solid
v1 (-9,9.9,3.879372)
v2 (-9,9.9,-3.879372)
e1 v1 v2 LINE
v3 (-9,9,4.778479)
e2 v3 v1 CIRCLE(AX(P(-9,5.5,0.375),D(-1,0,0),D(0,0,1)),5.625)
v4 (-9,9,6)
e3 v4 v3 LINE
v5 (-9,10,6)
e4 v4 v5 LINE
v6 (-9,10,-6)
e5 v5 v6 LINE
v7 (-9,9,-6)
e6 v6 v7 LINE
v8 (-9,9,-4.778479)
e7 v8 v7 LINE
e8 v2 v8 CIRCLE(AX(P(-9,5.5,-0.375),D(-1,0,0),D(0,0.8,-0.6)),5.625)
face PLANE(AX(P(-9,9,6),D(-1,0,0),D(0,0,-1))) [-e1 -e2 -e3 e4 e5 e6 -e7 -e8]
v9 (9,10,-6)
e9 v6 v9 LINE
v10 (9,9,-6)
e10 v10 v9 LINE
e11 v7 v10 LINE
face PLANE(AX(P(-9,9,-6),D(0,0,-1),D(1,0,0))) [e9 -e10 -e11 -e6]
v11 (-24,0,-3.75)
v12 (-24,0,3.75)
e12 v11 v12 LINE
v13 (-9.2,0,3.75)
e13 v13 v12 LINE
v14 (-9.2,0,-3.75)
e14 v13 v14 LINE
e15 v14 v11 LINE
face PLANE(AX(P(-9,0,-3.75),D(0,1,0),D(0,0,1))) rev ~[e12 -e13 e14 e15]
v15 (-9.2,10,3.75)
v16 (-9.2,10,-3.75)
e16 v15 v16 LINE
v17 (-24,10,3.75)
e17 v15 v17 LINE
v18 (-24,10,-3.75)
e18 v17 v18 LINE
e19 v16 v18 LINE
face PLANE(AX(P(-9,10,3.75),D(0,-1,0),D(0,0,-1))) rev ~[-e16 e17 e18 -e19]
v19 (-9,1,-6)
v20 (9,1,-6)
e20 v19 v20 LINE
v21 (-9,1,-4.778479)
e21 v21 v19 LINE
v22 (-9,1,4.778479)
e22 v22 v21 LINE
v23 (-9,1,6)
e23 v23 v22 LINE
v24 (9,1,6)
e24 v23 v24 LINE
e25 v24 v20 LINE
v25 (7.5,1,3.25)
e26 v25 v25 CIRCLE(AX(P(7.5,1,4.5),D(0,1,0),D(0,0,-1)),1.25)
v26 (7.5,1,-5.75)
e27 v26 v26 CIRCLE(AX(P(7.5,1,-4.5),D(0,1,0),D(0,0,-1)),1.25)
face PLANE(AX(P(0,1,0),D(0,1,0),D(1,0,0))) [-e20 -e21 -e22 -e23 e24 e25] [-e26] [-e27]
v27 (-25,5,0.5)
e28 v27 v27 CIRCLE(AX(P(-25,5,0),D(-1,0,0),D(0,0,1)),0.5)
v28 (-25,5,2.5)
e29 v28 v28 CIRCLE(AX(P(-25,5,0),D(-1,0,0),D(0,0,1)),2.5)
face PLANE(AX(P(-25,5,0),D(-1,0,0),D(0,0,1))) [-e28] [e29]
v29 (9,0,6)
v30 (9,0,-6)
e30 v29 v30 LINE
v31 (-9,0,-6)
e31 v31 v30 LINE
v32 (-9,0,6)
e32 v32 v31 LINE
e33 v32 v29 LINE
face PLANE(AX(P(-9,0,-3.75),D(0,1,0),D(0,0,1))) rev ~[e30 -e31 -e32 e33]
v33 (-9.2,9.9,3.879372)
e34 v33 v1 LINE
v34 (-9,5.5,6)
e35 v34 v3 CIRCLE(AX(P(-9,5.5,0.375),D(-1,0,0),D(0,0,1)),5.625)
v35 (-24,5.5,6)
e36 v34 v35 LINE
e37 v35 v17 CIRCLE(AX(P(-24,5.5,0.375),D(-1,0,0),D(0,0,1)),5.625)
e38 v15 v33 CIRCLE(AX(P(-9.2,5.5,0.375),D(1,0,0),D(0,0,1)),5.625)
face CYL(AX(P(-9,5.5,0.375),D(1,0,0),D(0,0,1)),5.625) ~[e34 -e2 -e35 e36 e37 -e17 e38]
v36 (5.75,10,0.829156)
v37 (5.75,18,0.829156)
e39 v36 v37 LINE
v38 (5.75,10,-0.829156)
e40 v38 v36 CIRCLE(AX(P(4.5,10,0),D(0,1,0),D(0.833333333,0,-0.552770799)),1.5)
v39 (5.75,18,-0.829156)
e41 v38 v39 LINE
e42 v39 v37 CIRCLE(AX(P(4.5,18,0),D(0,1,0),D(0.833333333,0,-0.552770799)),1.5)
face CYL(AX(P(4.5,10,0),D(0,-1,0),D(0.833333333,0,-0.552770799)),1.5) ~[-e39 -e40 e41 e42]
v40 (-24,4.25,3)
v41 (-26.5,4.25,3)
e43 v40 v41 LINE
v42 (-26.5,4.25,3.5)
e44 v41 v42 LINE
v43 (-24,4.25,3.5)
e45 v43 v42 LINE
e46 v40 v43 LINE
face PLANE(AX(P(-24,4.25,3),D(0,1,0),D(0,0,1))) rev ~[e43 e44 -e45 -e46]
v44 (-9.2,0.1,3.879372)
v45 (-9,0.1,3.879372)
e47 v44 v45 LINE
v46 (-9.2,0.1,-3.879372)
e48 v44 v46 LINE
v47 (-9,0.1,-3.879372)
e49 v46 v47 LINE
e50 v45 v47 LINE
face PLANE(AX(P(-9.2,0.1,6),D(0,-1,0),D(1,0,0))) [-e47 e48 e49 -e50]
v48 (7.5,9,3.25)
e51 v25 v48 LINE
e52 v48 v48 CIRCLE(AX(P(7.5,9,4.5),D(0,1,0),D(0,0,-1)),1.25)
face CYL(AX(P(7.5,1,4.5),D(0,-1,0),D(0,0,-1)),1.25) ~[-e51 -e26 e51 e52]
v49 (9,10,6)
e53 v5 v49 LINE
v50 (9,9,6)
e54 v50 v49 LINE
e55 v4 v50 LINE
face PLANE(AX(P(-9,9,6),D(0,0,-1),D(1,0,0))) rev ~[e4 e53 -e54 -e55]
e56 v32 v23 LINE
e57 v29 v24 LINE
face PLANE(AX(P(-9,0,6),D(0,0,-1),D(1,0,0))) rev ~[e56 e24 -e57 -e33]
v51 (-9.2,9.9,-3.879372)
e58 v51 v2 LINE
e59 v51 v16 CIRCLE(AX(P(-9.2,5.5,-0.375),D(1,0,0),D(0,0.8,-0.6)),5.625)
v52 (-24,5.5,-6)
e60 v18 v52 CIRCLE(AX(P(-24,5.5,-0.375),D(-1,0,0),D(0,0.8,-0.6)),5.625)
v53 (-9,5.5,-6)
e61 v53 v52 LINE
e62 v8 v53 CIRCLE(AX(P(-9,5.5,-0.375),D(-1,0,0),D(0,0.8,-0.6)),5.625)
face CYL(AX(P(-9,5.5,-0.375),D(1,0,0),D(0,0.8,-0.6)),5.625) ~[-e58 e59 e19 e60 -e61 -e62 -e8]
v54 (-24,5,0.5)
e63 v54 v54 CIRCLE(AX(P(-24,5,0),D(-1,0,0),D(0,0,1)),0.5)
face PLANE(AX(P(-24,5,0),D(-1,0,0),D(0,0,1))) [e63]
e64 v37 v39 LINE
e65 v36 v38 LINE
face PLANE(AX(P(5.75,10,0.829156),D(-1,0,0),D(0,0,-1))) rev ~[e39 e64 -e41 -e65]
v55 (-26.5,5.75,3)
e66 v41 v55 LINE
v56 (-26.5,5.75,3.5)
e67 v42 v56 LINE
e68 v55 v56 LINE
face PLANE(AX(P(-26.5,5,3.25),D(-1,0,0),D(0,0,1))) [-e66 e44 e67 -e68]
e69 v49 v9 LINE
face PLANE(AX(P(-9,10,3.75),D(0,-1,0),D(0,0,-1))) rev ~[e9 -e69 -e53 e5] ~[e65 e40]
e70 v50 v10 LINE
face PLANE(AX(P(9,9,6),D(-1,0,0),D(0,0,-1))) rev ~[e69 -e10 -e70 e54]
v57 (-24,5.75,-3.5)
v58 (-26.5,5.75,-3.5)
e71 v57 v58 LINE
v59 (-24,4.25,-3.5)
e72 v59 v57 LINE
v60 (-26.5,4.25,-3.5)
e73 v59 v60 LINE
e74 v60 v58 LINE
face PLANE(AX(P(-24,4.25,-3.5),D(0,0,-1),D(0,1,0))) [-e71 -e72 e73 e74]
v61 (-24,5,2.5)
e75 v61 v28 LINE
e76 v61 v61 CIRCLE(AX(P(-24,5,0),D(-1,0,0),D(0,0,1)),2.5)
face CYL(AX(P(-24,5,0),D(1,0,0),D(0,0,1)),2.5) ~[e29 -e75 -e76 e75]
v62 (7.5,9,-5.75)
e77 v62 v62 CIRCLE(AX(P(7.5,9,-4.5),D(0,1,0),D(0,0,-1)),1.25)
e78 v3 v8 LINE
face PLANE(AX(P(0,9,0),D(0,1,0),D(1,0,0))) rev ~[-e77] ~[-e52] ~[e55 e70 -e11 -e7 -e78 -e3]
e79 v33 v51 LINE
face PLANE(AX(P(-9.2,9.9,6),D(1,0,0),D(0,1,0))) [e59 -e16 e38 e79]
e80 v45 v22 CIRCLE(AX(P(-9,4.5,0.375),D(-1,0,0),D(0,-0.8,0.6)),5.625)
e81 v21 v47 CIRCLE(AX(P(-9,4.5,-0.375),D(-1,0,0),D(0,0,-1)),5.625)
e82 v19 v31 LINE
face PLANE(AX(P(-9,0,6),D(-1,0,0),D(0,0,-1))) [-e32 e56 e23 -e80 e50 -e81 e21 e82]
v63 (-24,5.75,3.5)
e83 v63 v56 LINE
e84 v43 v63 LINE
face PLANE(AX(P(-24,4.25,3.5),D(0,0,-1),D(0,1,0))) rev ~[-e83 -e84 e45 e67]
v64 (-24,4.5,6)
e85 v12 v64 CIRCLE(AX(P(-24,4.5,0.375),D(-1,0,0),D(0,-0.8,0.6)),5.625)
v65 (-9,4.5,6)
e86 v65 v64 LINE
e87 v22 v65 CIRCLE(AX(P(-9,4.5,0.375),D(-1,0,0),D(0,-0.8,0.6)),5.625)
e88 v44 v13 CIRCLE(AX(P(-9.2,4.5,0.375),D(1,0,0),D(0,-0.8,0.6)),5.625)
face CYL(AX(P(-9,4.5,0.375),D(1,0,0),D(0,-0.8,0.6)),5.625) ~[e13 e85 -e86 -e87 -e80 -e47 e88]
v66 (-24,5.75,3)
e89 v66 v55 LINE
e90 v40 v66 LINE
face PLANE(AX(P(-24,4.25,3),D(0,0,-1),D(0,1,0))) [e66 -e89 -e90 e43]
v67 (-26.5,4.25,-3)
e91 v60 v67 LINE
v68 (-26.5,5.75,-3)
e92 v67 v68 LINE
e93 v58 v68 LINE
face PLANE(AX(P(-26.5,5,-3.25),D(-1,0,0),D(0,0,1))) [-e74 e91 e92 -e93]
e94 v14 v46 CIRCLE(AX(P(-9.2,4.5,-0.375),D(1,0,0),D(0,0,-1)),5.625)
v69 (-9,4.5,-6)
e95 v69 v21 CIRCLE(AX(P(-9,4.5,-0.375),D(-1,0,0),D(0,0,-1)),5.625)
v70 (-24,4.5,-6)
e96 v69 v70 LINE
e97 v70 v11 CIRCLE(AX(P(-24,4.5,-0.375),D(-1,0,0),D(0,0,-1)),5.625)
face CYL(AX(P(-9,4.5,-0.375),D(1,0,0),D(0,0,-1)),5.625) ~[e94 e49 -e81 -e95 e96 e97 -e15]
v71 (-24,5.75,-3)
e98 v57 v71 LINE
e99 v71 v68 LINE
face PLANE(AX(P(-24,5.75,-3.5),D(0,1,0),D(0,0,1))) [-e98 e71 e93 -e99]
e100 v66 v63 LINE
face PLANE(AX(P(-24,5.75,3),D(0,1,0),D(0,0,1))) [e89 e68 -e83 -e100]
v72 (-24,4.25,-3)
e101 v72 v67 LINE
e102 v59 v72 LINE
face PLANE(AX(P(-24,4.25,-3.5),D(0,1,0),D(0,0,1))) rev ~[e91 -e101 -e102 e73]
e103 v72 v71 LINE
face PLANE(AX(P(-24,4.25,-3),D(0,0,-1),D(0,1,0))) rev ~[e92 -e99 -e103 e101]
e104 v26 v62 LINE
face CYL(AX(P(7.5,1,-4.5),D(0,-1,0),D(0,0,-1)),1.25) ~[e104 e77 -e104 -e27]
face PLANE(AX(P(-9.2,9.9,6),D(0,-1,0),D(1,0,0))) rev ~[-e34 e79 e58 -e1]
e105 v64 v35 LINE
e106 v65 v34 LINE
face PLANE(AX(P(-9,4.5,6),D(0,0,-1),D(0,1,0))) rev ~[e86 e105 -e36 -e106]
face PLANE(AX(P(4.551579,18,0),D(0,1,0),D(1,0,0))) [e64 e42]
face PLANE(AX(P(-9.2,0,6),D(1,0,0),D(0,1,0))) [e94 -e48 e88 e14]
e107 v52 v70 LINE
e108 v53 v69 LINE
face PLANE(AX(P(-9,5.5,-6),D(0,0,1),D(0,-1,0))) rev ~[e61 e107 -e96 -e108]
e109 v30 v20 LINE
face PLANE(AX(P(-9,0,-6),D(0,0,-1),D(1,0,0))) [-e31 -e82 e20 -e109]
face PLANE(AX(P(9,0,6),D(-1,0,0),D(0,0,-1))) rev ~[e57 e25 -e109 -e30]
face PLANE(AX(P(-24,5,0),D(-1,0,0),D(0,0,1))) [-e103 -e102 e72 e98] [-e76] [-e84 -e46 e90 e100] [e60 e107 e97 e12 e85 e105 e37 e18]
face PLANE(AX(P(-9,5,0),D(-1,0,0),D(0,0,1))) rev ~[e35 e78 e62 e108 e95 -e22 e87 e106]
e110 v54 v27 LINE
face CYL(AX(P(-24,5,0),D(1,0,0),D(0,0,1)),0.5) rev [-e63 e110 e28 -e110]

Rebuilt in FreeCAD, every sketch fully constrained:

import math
import FreeCAD as App
import Part
import Sketcher

V = App.Vector
Q = App.Units.Quantity

doc = App.newDocument("Part")
body = doc.addObject("PartDesign::Body", "Body")

sketch1 = body.newObject("Sketcher::SketchObject", "Sketch")
sketch1.AttachmentSupport = (doc.getObject("XZ_Plane"), [""])
sketch1.MapMode = "FlatFace"
sketch1.addGeometry([
    Part.LineSegment(V(-9, -6, 0), V(-9, 6, 0)),
    Part.LineSegment(V(-9, 6, 0), V(9, 6, 0)),
    Part.LineSegment(V(9, 6, 0), V(9, -6, 0)),
    Part.LineSegment(V(9, -6, 0), V(-9, -6, 0)),
], False)
sketch1.addConstraint([
    Sketcher.Constraint("Coincident", 0, 2, 1, 1),
    Sketcher.Constraint("Coincident", 1, 2, 2, 1),
    Sketcher.Constraint("Coincident", 2, 2, 3, 1),
    Sketcher.Constraint("Coincident", 3, 2, 0, 1),
    Sketcher.Constraint("Vertical", 0),
    Sketcher.Constraint("Horizontal", 1),
    Sketcher.Constraint("Vertical", 2),
    Sketcher.Constraint("Horizontal", 3),
    Sketcher.Constraint("Symmetric", 0, 2, 2, 2, -1, 1),
    Sketcher.Constraint("DistanceX", 1, 1, 1, 2, Q("18 mm")),
    Sketcher.Constraint("DistanceY", 0, 1, 0, 2, Q("12 mm")),
])
pad1 = body.newObject("PartDesign::Pad", "Pad")
pad1.Profile = sketch1
pad1.Length = 1
pad1.Reversed = True

sketch2 = body.newObject("Sketcher::SketchObject", "Sketch001")
sketch2.AttachmentSupport = (doc.getObject("XZ_Plane"), [""])
sketch2.MapMode = "FlatFace"
sketch2.AttachmentOffset = App.Placement(V(0, 0, -1), App.Rotation())
sketch2.addGeometry([
    Part.Circle(V(7.5, -4.5, 0), V(0, 0, 1), 1.2),
    Part.Circle(V(7.5, 4.5, 0), V(0, 0, 1), 1.2),
], False)
sketch2.addConstraint([
    Sketcher.Constraint("Equal", 0, 1),
    Sketcher.Constraint("Symmetric", 0, 3, 1, 3, -1),
    Sketcher.Constraint("Diameter", 0, Q("2.5 mm")),
    Sketcher.Constraint("DistanceY", 0, 3, 1, 3, Q("9 mm")),
    Sketcher.Constraint("DistanceX", -1, 1, 0, 3, Q("7.5 mm")),
])
pad2 = body.newObject("PartDesign::Pad", "Pad001")
pad2.Profile = sketch2
pad2.Length = 8
pad2.Reversed = True

sketch3 = body.newObject("Sketcher::SketchObject", "Sketch002")
sketch3.AttachmentSupport = (doc.getObject("XZ_Plane"), [""])
sketch3.MapMode = "FlatFace"
sketch3.AttachmentOffset = App.Placement(V(0, 0, -9), App.Rotation())
sketch3.addGeometry([
    Part.LineSegment(V(-9, -6, 0), V(-9, 6, 0)),
    Part.LineSegment(V(-9, 6, 0), V(9, 6, 0)),
    Part.LineSegment(V(9, 6, 0), V(9, -6, 0)),
    Part.LineSegment(V(9, -6, 0), V(-9, -6, 0)),
], False)
sketch3.addConstraint([
    Sketcher.Constraint("Coincident", 0, 2, 1, 1),
    Sketcher.Constraint("Coincident", 1, 2, 2, 1),
    Sketcher.Constraint("Coincident", 2, 2, 3, 1),
    Sketcher.Constraint("Coincident", 3, 2, 0, 1),
    Sketcher.Constraint("Vertical", 0),
    Sketcher.Constraint("Horizontal", 1),
    Sketcher.Constraint("Vertical", 2),
    Sketcher.Constraint("Horizontal", 3),
    Sketcher.Constraint("Symmetric", 0, 2, 2, 2, -1, 1),
    Sketcher.Constraint("DistanceX", 1, 1, 1, 2, Q("18 mm")),
    Sketcher.Constraint("DistanceY", 0, 1, 0, 2, Q("12 mm")),
])
pad3 = body.newObject("PartDesign::Pad", "Pad002")
pad3.Profile = sketch3
pad3.Length = 1
pad3.Reversed = True

sketch4 = body.newObject("Sketcher::SketchObject", "Sketch003")
sketch4.AttachmentSupport = (doc.getObject("YZ_Plane"), [""])
sketch4.MapMode = "FlatFace"
sketch4.AttachmentOffset = App.Placement(V(0, 0, -9), App.Rotation())
sketch4.addGeometry([
    Part.LineSegment(V(0, -3.8, 0), V(0, 3.8, 0)),
    Part.ArcOfCircle(Part.Circle(V(4.5, 0.4, 0), V(0, 0, 1), 5.6), math.radians(90), math.radians(143)),
    Part.LineSegment(V(4.5, 6, 0), V(5.5, 6, 0)),
    Part.ArcOfCircle(Part.Circle(V(5.5, 0.4, 0), V(0, 0, 1), 5.6), math.radians(37), math.radians(90)),
    Part.LineSegment(V(10, 3.8, 0), V(10, -3.8, 0)),
    Part.ArcOfCircle(Part.Circle(V(5.5, -0.4, 0), V(0, 0, 1), 5.6), math.radians(-90), math.radians(-37)),
    Part.LineSegment(V(5.5, -6, 0), V(4.5, -6, 0)),
    Part.ArcOfCircle(Part.Circle(V(4.5, -0.4, 0), V(0, 0, 1), 5.6), math.radians(-143), math.radians(-90)),
], False)
sketch4.addConstraint([
    Sketcher.Constraint("Coincident", 0, 2, 1, 2),
    Sketcher.Constraint("Tangent", 1, 1, 2, 1),
    Sketcher.Constraint("Tangent", 2, 2, 3, 2),
    Sketcher.Constraint("Coincident", 3, 1, 4, 1),
    Sketcher.Constraint("Coincident", 4, 2, 5, 2),
    Sketcher.Constraint("Tangent", 5, 1, 6, 1),
    Sketcher.Constraint("Tangent", 6, 2, 7, 2),
    Sketcher.Constraint("Coincident", 7, 1, 0, 1),
    Sketcher.Constraint("Vertical", 0),
    Sketcher.Constraint("Horizontal", 2),
    Sketcher.Constraint("Vertical", 4),
    Sketcher.Constraint("Horizontal", 6),
    Sketcher.Constraint("Equal", 1, 3),
    Sketcher.Constraint("Equal", 3, 5),
    Sketcher.Constraint("Equal", 5, 7),
    Sketcher.Constraint("Symmetric", 0, 2, 7, 1, -1, 1),
    Sketcher.Constraint("Symmetric", 3, 3, 5, 3, -1),
    Sketcher.Constraint("Horizontal", 0, 2, 3, 1),
    Sketcher.Constraint("DistanceX", 2, 1, 2, 2, Q("1 mm")),
    Sketcher.Constraint("DistanceY", 0, 1, 0, 2, Q("7.5 mm")),
    Sketcher.Constraint("DistanceY", -1, 1, 1, 1, Q("6 mm")),
    Sketcher.Constraint("DistanceX", -1, 1, 3, 1, Q("10 mm")),
])
pad4 = body.newObject("PartDesign::Pad", "Pad003")
pad4.Profile = sketch4
pad4.Length = 15
pad4.Reversed = True

sketch5 = body.newObject("Sketcher::SketchObject", "Sketch004")
sketch5.AttachmentSupport = (doc.getObject("YZ_Plane"), [""])
sketch5.MapMode = "FlatFace"
sketch5.AttachmentOffset = App.Placement(V(0, 0, -24), App.Rotation())
sketch5.addGeometry([
    Part.Circle(V(5, 0, 0), V(0, 0, 1), 2.5),
    Part.Circle(V(5, 0, 0), V(0, 0, 1), 0.5),
], False)
sketch5.addConstraint([
    Sketcher.Constraint("Coincident", 1, 3, 0, 3),
    Sketcher.Constraint("PointOnObject", 0, 3, -1),
    Sketcher.Constraint("Diameter", 0, Q("5 mm")),
    Sketcher.Constraint("Diameter", 1, Q("1 mm")),
    Sketcher.Constraint("DistanceX", -1, 1, 0, 3, Q("5 mm")),
])
pad5 = body.newObject("PartDesign::Pad", "Pad004")
pad5.Profile = sketch5
pad5.Length = 1
pad5.Reversed = True

sketch6 = body.newObject("Sketcher::SketchObject", "Sketch005")
sketch6.AttachmentSupport = (doc.getObject("YZ_Plane"), [""])
sketch6.MapMode = "FlatFace"
sketch6.AttachmentOffset = App.Placement(V(0, 0, -24), App.Rotation())
sketch6.addGeometry([
    Part.LineSegment(V(5.8, -3.5, 0), V(4.2, -3.5, 0)),
    Part.LineSegment(V(4.2, -3.5, 0), V(4.2, -3, 0)),
    Part.LineSegment(V(4.2, -3, 0), V(5.8, -3, 0)),
    Part.LineSegment(V(5.8, -3, 0), V(5.8, -3.5, 0)),
    Part.LineSegment(V(5.8, 3, 0), V(4.2, 3, 0)),
    Part.LineSegment(V(4.2, 3, 0), V(4.2, 3.5, 0)),
    Part.LineSegment(V(4.2, 3.5, 0), V(5.8, 3.5, 0)),
    Part.LineSegment(V(5.8, 3.5, 0), V(5.8, 3, 0)),
], False)
sketch6.addConstraint([
    Sketcher.Constraint("Coincident", 0, 2, 1, 1),
    Sketcher.Constraint("Coincident", 1, 2, 2, 1),
    Sketcher.Constraint("Coincident", 2, 2, 3, 1),
    Sketcher.Constraint("Coincident", 3, 2, 0, 1),
    Sketcher.Constraint("Coincident", 4, 2, 5, 1),
    Sketcher.Constraint("Coincident", 5, 2, 6, 1),
    Sketcher.Constraint("Coincident", 6, 2, 7, 1),
    Sketcher.Constraint("Coincident", 7, 2, 4, 1),
    Sketcher.Constraint("Horizontal", 0),
    Sketcher.Constraint("Vertical", 1),
    Sketcher.Constraint("Horizontal", 2),
    Sketcher.Constraint("Vertical", 3),
    Sketcher.Constraint("Horizontal", 4),
    Sketcher.Constraint("Vertical", 5),
    Sketcher.Constraint("Horizontal", 6),
    Sketcher.Constraint("Vertical", 7),
    Sketcher.Constraint("Symmetric", 1, 2, 4, 2, -1),
    Sketcher.Constraint("Symmetric", 3, 2, 6, 2, -1),
    Sketcher.Constraint("DistanceX", 0, 2, 0, 1, Q("1.5 mm")),
    Sketcher.Constraint("DistanceY", 1, 1, 1, 2, Q("0.5 mm")),
    Sketcher.Constraint("DistanceY", 1, 2, -1, 1, Q("3 mm")),
    Sketcher.Constraint("DistanceX", -1, 1, 0, 2, Q("4.25 mm")),
])
pad6 = body.newObject("PartDesign::Pad", "Pad005")
pad6.Profile = sketch6
pad6.Length = 2.5
pad6.Reversed = True

sketch7 = body.newObject("Sketcher::SketchObject", "Sketch006")
sketch7.AttachmentSupport = (doc.getObject("XZ_Plane"), [""])
sketch7.MapMode = "FlatFace"
sketch7.AttachmentOffset = App.Placement(V(0, 0, -10), App.Rotation())
sketch7.addGeometry([
    Part.LineSegment(V(5.8, 0.8, 0), V(5.8, -0.8, 0)),
    Part.ArcOfCircle(Part.Circle(V(4.5, 0, 0), V(0, 0, 1), 1.5), math.radians(34), math.radians(326)),
], False)
sketch7.addConstraint([
    Sketcher.Constraint("Coincident", 0, 1, 1, 1),
    Sketcher.Constraint("Coincident", 1, 2, 0, 2),
    Sketcher.Constraint("Vertical", 0),
    Sketcher.Constraint("PointOnObject", 1, 3, -1),
    Sketcher.Constraint("Radius", 1, Q("1.5 mm")),
    Sketcher.Constraint("DistanceX", -1, 1, 1, 3, Q("4.5 mm")),
    Sketcher.Constraint("DistanceX", -1, 1, 0, 1, Q("5.75 mm")),
])
pad7 = body.newObject("PartDesign::Pad", "Pad006")
pad7.Profile = sketch7
pad7.Length = 8
pad7.Reversed = True

sketch8 = body.newObject("Sketcher::SketchObject", "Sketch007")
sketch8.AttachmentSupport = (doc.getObject("XY_Plane"), [""])
sketch8.MapMode = "FlatFace"
sketch8.AttachmentOffset = App.Placement(V(0, 0, 6), App.Rotation())
sketch8.addGeometry([
    Part.LineSegment(V(-9.2, 10, 0), V(-9.2, 9.9, 0)),
    Part.LineSegment(V(-9.2, 9.9, 0), V(-9, 9.9, 0)),
    Part.LineSegment(V(-9, 9.9, 0), V(-9, 10, 0)),
    Part.LineSegment(V(-9, 10, 0), V(-9.2, 10, 0)),
    Part.LineSegment(V(-9.2, 0.1, 0), V(-9.2, 0, 0)),
    Part.LineSegment(V(-9.2, 0, 0), V(-9, 0, 0)),
    Part.LineSegment(V(-9, 0, 0), V(-9, 0.1, 0)),
    Part.LineSegment(V(-9, 0.1, 0), V(-9.2, 0.1, 0)),
], False)
sketch8.addConstraint([
    Sketcher.Constraint("Coincident", 0, 2, 1, 1),
    Sketcher.Constraint("Coincident", 1, 2, 2, 1),
    Sketcher.Constraint("Coincident", 2, 2, 3, 1),
    Sketcher.Constraint("Coincident", 3, 2, 0, 1),
    Sketcher.Constraint("Coincident", 4, 2, 5, 1),
    Sketcher.Constraint("Coincident", 5, 2, 6, 1),
    Sketcher.Constraint("Coincident", 6, 2, 7, 1),
    Sketcher.Constraint("Coincident", 7, 2, 4, 1),
    Sketcher.Constraint("Vertical", 0),
    Sketcher.Constraint("Horizontal", 1),
    Sketcher.Constraint("Vertical", 2),
    Sketcher.Constraint("Horizontal", 3),
    Sketcher.Constraint("Vertical", 4),
    Sketcher.Constraint("Horizontal", 5),
    Sketcher.Constraint("Vertical", 6),
    Sketcher.Constraint("Horizontal", 7),
    Sketcher.Constraint("PointOnObject", 4, 2, -1),
    Sketcher.Constraint("Vertical", 3, 2, 4, 2),
    Sketcher.Constraint("Vertical", 2, 2, 5, 2),
    Sketcher.Constraint("Equal", 2, 4),
    Sketcher.Constraint("DistanceX", 1, 1, 1, 2, Q("0.2 mm")),
    Sketcher.Constraint("DistanceY", 0, 2, 0, 1, Q("0.1 mm")),
    Sketcher.Constraint("DistanceX", 1, 2, -1, 1, Q("9 mm")),
    Sketcher.Constraint("DistanceY", -1, 1, 2, 2, Q("10 mm")),
])
pocket1 = body.newObject("PartDesign::Pocket", "Pocket")
pocket1.Profile = sketch8
pocket1.Type = "ThroughAll"

doc.recompute()
